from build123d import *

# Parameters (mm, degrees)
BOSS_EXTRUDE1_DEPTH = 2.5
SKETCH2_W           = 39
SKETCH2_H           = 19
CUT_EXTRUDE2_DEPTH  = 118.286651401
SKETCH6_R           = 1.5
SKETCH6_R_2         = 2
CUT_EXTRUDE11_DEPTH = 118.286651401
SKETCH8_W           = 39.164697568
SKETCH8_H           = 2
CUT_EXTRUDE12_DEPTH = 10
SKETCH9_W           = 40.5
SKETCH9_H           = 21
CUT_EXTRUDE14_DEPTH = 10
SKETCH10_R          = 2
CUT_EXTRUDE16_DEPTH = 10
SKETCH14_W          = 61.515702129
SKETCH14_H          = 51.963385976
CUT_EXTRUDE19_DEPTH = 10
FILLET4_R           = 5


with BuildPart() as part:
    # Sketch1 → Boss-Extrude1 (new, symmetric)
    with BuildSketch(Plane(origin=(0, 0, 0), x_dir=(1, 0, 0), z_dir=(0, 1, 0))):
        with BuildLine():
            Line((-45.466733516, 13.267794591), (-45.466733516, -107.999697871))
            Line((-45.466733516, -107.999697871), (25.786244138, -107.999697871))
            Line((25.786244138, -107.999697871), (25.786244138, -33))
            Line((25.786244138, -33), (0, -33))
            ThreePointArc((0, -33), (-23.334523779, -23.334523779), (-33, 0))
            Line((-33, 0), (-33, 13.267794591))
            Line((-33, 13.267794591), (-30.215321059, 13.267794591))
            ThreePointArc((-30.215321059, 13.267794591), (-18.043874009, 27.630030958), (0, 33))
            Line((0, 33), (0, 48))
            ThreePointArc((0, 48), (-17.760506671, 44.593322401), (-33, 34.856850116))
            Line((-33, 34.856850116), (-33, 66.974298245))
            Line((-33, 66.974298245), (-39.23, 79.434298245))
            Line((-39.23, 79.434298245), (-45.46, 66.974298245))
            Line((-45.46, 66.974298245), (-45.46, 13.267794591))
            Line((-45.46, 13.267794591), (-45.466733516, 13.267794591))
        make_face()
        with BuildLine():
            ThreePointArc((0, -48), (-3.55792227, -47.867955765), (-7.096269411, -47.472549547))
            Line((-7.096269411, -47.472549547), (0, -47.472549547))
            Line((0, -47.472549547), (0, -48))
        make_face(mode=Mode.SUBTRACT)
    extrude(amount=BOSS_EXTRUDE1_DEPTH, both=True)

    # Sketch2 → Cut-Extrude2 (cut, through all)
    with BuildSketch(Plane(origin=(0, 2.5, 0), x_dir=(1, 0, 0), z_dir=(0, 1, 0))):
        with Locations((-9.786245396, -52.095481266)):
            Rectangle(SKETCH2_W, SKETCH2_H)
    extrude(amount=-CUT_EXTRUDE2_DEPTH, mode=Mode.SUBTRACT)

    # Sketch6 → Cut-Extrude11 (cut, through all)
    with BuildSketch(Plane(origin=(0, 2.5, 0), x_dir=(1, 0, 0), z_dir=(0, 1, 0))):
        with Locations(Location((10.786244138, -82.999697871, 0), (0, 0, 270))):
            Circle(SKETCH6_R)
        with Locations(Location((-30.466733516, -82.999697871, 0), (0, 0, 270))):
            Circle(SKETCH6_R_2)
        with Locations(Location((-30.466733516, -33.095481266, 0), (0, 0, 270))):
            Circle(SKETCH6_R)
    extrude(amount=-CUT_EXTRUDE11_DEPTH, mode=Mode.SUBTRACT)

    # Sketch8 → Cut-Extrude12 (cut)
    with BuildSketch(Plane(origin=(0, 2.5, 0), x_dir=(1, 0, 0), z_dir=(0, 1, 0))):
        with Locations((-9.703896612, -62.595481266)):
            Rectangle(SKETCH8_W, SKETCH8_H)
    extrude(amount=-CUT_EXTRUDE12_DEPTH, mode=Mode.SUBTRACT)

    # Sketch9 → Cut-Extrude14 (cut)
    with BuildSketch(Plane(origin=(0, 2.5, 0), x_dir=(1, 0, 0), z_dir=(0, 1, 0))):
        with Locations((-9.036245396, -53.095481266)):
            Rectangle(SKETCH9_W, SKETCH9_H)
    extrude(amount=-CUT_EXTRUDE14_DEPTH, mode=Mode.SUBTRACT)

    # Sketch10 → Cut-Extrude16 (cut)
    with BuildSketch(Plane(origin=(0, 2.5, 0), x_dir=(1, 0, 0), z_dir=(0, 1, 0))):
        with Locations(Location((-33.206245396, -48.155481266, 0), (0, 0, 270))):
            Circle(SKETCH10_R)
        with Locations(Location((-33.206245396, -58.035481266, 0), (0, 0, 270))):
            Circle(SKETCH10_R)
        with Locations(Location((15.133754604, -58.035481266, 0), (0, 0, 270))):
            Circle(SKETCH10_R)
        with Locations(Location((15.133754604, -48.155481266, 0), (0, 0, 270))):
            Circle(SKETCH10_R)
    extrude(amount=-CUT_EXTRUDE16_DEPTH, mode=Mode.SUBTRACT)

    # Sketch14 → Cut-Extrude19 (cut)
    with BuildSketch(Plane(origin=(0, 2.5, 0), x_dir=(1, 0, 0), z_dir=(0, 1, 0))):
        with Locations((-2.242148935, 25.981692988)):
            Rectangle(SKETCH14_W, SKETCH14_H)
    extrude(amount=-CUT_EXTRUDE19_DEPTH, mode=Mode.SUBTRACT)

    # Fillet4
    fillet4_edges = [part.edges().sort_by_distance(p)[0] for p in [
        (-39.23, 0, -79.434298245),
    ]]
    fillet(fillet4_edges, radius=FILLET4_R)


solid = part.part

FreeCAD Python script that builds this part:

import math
import FreeCAD as App
import Part
import Sketcher

V = App.Vector
Q = App.Units.Quantity


def edges_at(feature, points):
    """Names of the edges that pass closest to the given points."""
    edges = feature.Shape.Edges
    near = lambda p: min(range(len(edges)), key=lambda i: edges[i].distToShape(Part.Vertex(*p))[0])
    return sorted({f"Edge{near(p) + 1}" for p in points})


def add_polygon(sketch, points):
    """Adds a closed chain of lines whose ends are joined by coincident constraints."""
    first, n = sketch.GeometryCount, len(points)
    for a, b in zip(points, points[1:] + points[:1]):
        sketch.addGeometry(Part.LineSegment(App.Vector(*a, 0), App.Vector(*b, 0)), False)
    for i in range(n):
        sketch.addConstraint(Sketcher.Constraint("Coincident", first + i, 2, first + (i + 1) % n, 1))

doc = App.newDocument("Part")
body = doc.addObject("PartDesign::Body", "Body")

sketch1 = body.newObject("Sketcher::SketchObject", "Sketch")
sketch1.AttachmentSupport = (doc.getObject("XZ_Plane"), [""])
sketch1.MapMode = "FlatFace"
sketch1.addGeometry(Part.LineSegment(V(-45.467, -13.268, 0), V(-45.467, 108, 0)), False)
sketch1.addGeometry(Part.LineSegment(V(-45.467, 108, 0), V(25.786, 108, 0)), False)
sketch1.addGeometry(Part.LineSegment(V(25.786, 108, 0), V(25.786, 33, 0)), False)
sketch1.addGeometry(Part.LineSegment(V(25.786, 33, 0), V(0, 33, 0)), False)
sketch1.addGeometry(Part.ArcOfCircle(Part.Circle(V(0, 0, 0), V(0, 0, 1), 33), math.radians(90), math.radians(180)), False)
sketch1.addGeometry(Part.LineSegment(V(-33, 0, 0), V(-33, -13.268, 0)), False)
sketch1.addGeometry(Part.LineSegment(V(-33, -13.268, 0), V(-30.215, -13.268, 0)), False)
sketch1.addGeometry(Part.ArcOfCircle(Part.Circle(V(0, 0, 0), V(0, 0, 1), 33), math.radians(-156), math.radians(-90)), False)
sketch1.addGeometry(Part.LineSegment(V(0, -33, 0), V(0, -48, 0)), False)
sketch1.addGeometry(Part.ArcOfCircle(Part.Circle(V(0, 0, 0), V(0, 0, 1), 48), math.radians(-133), math.radians(-90)), False)
sketch1.addGeometry(Part.LineSegment(V(-33, -34.857, 0), V(-33, -66.974, 0)), False)
sketch1.addGeometry(Part.LineSegment(V(-33, -66.974, 0), V(-39.23, -79.434, 0)), False)
sketch1.addGeometry(Part.LineSegment(V(-39.23, -79.434, 0), V(-45.46, -66.974, 0)), False)
sketch1.addGeometry(Part.LineSegment(V(-45.46, -66.974, 0), V(-45.46, -13.268, 0)), False)
sketch1.addGeometry(Part.LineSegment(V(-45.46, -13.268, 0), V(-45.467, -13.268, 0)), False)
sketch1.addGeometry(Part.LineSegment(V(0, 47.473, 0), V(0, 48, 0)), False)
sketch1.addGeometry(Part.ArcOfCircle(Part.Circle(V(0, 0, 0), V(0, 0, 1), 48), math.radians(90), math.radians(98.5)), False)
sketch1.addGeometry(Part.LineSegment(V(-7.096, 47.473, 0), V(0, 47.473, 0)), False)
sketch1.addConstraint(Sketcher.Constraint("Coincident", 0, 2, 1, 1))
sketch1.addConstraint(Sketcher.Constraint("Coincident", 1, 2, 2, 1))
sketch1.addConstraint(Sketcher.Constraint("Coincident", 2, 2, 3, 1))
sketch1.addConstraint(Sketcher.Constraint("Tangent", 3, 2, 4, 1))
sketch1.addConstraint(Sketcher.Constraint("Tangent", 4, 2, 5, 1))
sketch1.addConstraint(Sketcher.Constraint("Coincident", 5, 2, 6, 1))
sketch1.addConstraint(Sketcher.Constraint("Coincident", 6, 2, 7, 1))
sketch1.addConstraint(Sketcher.Constraint("Coincident", 7, 2, 8, 1))
sketch1.addConstraint(Sketcher.Constraint("Coincident", 8, 2, 9, 2))
sketch1.addConstraint(Sketcher.Constraint("Coincident", 9, 1, 10, 1))
sketch1.addConstraint(Sketcher.Constraint("Coincident", 10, 2, 11, 1))
sketch1.addConstraint(Sketcher.Constraint("Coincident", 11, 2, 12, 1))
sketch1.addConstraint(Sketcher.Constraint("Coincident", 12, 2, 13, 1))
sketch1.addConstraint(Sketcher.Constraint("Coincident", 13, 2, 14, 1))
sketch1.addConstraint(Sketcher.Constraint("Coincident", 14, 2, 0, 1))
sketch1.addConstraint(Sketcher.Constraint("Coincident", 15, 2, 16, 1))
sketch1.addConstraint(Sketcher.Constraint("Coincident", 16, 2, 17, 1))
sketch1.addConstraint(Sketcher.Constraint("Coincident", 17, 2, 15, 1))
sketch1.addConstraint(Sketcher.Constraint("Vertical", 0))
sketch1.addConstraint(Sketcher.Constraint("Horizontal", 1))
sketch1.addConstraint(Sketcher.Constraint("Vertical", 2))
sketch1.addConstraint(Sketcher.Constraint("Horizontal", 3))
sketch1.addConstraint(Sketcher.Constraint("Vertical", 5))
sketch1.addConstraint(Sketcher.Constraint("Horizontal", 6))
sketch1.addConstraint(Sketcher.Constraint("Vertical", 8))
sketch1.addConstraint(Sketcher.Constraint("Vertical", 10))
sketch1.addConstraint(Sketcher.Constraint("Vertical", 13))
sketch1.addConstraint(Sketcher.Constraint("Horizontal", 14))
sketch1.addConstraint(Sketcher.Constraint("Vertical", 15))
sketch1.addConstraint(Sketcher.Constraint("Horizontal", 17))
sketch1.addConstraint(Sketcher.Constraint("Coincident", 4, 3, -1, 1))
sketch1.addConstraint(Sketcher.Constraint("Coincident", 7, 3, -1, 1))
sketch1.addConstraint(Sketcher.Constraint("Coincident", 9, 3, -1, 1))
sketch1.addConstraint(Sketcher.Constraint("Coincident", 16, 3, -1, 1))
sketch1.addConstraint(Sketcher.Constraint("Equal", 4, 7))
sketch1.addConstraint(Sketcher.Constraint("Equal", 9, 16))
sketch1.addConstraint(Sketcher.Constraint("PointOnObject", 7, 2, -2))
sketch1.addConstraint(Sketcher.Constraint("PointOnObject", 15, 2, -2))
sketch1.addConstraint(Sketcher.Constraint("Horizontal", 10, 2, 12, 2))
sketch1.addConstraint(Sketcher.Constraint("Horizontal", 6, 2, 13, 2))
sketch1.addConstraint(Sketcher.Constraint("Vertical", 5, 2, 9, 1))
sketch1.addConstraint(Sketcher.Constraint("Equal", 11, 12))
sketch1.addConstraint(Sketcher.Constraint("Radius", 4, Q("33 mm")))
sketch1.addConstraint(Sketcher.Constraint("Radius", 9, Q("48 mm")))
sketch1.addConstraint(Sketcher.Constraint("DistanceX", 11, 2, -1, 1, Q("39.23 mm")))
sketch1.addConstraint(Sketcher.Constraint("DistanceY", 11, 2, 10, 2, Q("12.46 mm")))
sketch1.addConstraint(Sketcher.Constraint("DistanceX", 6, 1, 6, 2, Q("2.784679 mm")))
sketch1.addConstraint(Sketcher.Constraint("DistanceX", 17, 1, 17, 2, Q("7.096269 mm")))
sketch1.addConstraint(Sketcher.Constraint("DistanceY", 10, 2, 10, 1, Q("32.117448 mm")))
sketch1.addConstraint(Sketcher.Constraint("DistanceX", 1, 1, 1, 2, Q("71.252978 mm")))
sketch1.addConstraint(Sketcher.Constraint("DistanceX", 3, 2, 3, 1, Q("25.786244 mm")))
sketch1.addConstraint(Sketcher.Constraint("DistanceY", 0, 1, 0, 2, Q("121.267492 mm")))
pad1 = body.newObject("PartDesign::Pad", "Pad")
pad1.Profile = sketch1
pad1.Length = 5
pad1.Midplane = True

sketch2 = body.newObject("Sketcher::SketchObject", "Sketch001")
sketch2.AttachmentSupport = (doc.getObject("XZ_Plane"), [""])
sketch2.MapMode = "FlatFace"
sketch2.AttachmentOffset = App.Placement(V(0, 0, -2.5), App.Rotation())
add_polygon(sketch2, [(-29, 43), (-29, 62), (10, 62), (10, 43)])
sketch2.addConstraint(Sketcher.Constraint("Vertical", 0))
sketch2.addConstraint(Sketcher.Constraint("Horizontal", 1))
sketch2.addConstraint(Sketcher.Constraint("Vertical", 2))
sketch2.addConstraint(Sketcher.Constraint("Horizontal", 3))
sketch2.addConstraint(Sketcher.Constraint("DistanceX", 1, 1, 1, 2, Q("39 mm")))
sketch2.addConstraint(Sketcher.Constraint("DistanceY", 0, 1, 0, 2, Q("19 mm")))
sketch2.addConstraint(Sketcher.Constraint("DistanceY", -1, 1, 0, 2, Q("61.595481 mm")))
sketch2.addConstraint(Sketcher.Constraint("DistanceX", 0, 2, -1, 1, Q("29.286245 mm")))
pocket1 = body.newObject("PartDesign::Pocket", "Pocket")
pocket1.Profile = sketch2
pocket1.Type = "ThroughAll"
pocket1.Reversed = True

sketch3 = body.newObject("Sketcher::SketchObject", "Sketch002")
sketch3.AttachmentSupport = (doc.getObject("XZ_Plane"), [""])
sketch3.MapMode = "FlatFace"
sketch3.AttachmentOffset = App.Placement(V(0, 0, -2.5), App.Rotation())
sketch3.addGeometry(Part.Circle(V(10.8, 83, 0), V(0, 0, 1), 1.5), False)
sketch3.addGeometry(Part.Circle(V(-30.5, 83, 0), V(0, 0, 1), 2), False)
sketch3.addGeometry(Part.Circle(V(-30.5, 33.1, 0), V(0, 0, 1), 1.5), False)
sketch3.addConstraint(Sketcher.Constraint("Equal", 0, 2))
sketch3.addConstraint(Sketcher.Constraint("Horizontal", 0, 3, 1, 3))
sketch3.addConstraint(Sketcher.Constraint("Vertical", 1, 3, 2, 3))
sketch3.addConstraint(Sketcher.Constraint("Diameter", 0, Q("3 mm")))
sketch3.addConstraint(Sketcher.Constraint("Diameter", 1, Q("4 mm")))
sketch3.addConstraint(Sketcher.Constraint("DistanceY", -1, 1, 2, 3, Q("33.095481 mm")))
sketch3.addConstraint(Sketcher.Constraint("DistanceX", -1, 1, 0, 3, Q("10.786244 mm")))
sketch3.addConstraint(Sketcher.Constraint("DistanceY", -1, 1, 0, 3, Q("82.999698 mm")))
sketch3.addConstraint(Sketcher.Constraint("DistanceX", 1, 3, -1, 1, Q("30.466734 mm")))
pocket2 = body.newObject("PartDesign::Pocket", "Pocket001")
pocket2.Profile = sketch3
pocket2.Type = "ThroughAll"
pocket2.Reversed = True

sketch4 = body.newObject("Sketcher::SketchObject", "Sketch003")
sketch4.AttachmentSupport = (doc.getObject("XZ_Plane"), [""])
sketch4.MapMode = "FlatFace"
sketch4.AttachmentOffset = App.Placement(V(0, 0, -2.5), App.Rotation())
add_polygon(sketch4, [(-29.3, 61.6), (-29.3, 63.6), (9.9, 63.6), (9.9, 61.6)])
sketch4.addConstraint(Sketcher.Constraint("Vertical", 0))
sketch4.addConstraint(Sketcher.Constraint("Horizontal", 1))
sketch4.addConstraint(Sketcher.Constraint("Vertical", 2))
sketch4.addConstraint(Sketcher.Constraint("Horizontal", 3))
sketch4.addConstraint(Sketcher.Constraint("DistanceY", 0, 1, 0, 2, Q("2 mm")))
sketch4.addConstraint(Sketcher.Constraint("DistanceX", 1, 1, 1, 2, Q("39.164698 mm")))
sketch4.addConstraint(Sketcher.Constraint("DistanceY", -1, 1, 0, 2, Q("63.595481 mm")))
sketch4.addConstraint(Sketcher.Constraint("DistanceX", 0, 2, -1, 1, Q("29.286245 mm")))
pocket3 = body.newObject("PartDesign::Pocket", "Pocket002")
pocket3.Profile = sketch4
pocket3.Length = 10
pocket3.Reversed = True

sketch5 = body.newObject("Sketcher::SketchObject", "Sketch004")
sketch5.AttachmentSupport = (doc.getObject("XZ_Plane"), [""])
sketch5.MapMode = "FlatFace"
sketch5.AttachmentOffset = App.Placement(V(0, 0, -2.5), App.Rotation())
add_polygon(sketch5, [(-29, 43), (-29, 64), (11, 64), (11, 43)])
sketch5.addConstraint(Sketcher.Constraint("Vertical", 0))
sketch5.addConstraint(Sketcher.Constraint("Horizontal", 1))
sketch5.addConstraint(Sketcher.Constraint("Vertical", 2))
sketch5.addConstraint(Sketcher.Constraint("Horizontal", 3))
sketch5.addConstraint(Sketcher.Constraint("DistanceY", 0, 1, 0, 2, Q("21 mm")))
sketch5.addConstraint(Sketcher.Constraint("DistanceX", 1, 1, 1, 2, Q("40.5 mm")))
sketch5.addConstraint(Sketcher.Constraint("DistanceY", -1, 1, 0, 2, Q("63.595481 mm")))
sketch5.addConstraint(Sketcher.Constraint("DistanceX", 0, 2, -1, 1, Q("29.286245 mm")))
pocket4 = body.newObject("PartDesign::Pocket", "Pocket003")
pocket4.Profile = sketch5
pocket4.Length = 10
pocket4.Reversed = True

sketch6 = body.newObject("Sketcher::SketchObject", "Sketch005")
sketch6.AttachmentSupport = (doc.getObject("XZ_Plane"), [""])
sketch6.MapMode = "FlatFace"
sketch6.AttachmentOffset = App.Placement(V(0, 0, -2.5), App.Rotation())
sketch6.addGeometry(Part.Circle(V(-33.2, 48.2, 0), V(0, 0, 1), 2), False)
sketch6.addGeometry(Part.Circle(V(-33.2, 58, 0), V(0, 0, 1), 2), False)
sketch6.addGeometry(Part.Circle(V(15.1, 58, 0), V(0, 0, 1), 2), False)
sketch6.addGeometry(Part.Circle(V(15.1, 48.2, 0), V(0, 0, 1), 2), False)
sketch6.addConstraint(Sketcher.Constraint("Equal", 0, 1))
sketch6.addConstraint(Sketcher.Constraint("Equal", 1, 2))
sketch6.addConstraint(Sketcher.Constraint("Equal", 2, 3))
sketch6.addConstraint(Sketcher.Constraint("Horizontal", 1, 3, 2, 3))
sketch6.addConstraint(Sketcher.Constraint("Horizontal", 0, 3, 3, 3))
sketch6.addConstraint(Sketcher.Constraint("Vertical", 0, 3, 1, 3))
sketch6.addConstraint(Sketcher.Constraint("Vertical", 2, 3, 3, 3))
sketch6.addConstraint(Sketcher.Constraint("Diameter", 0, Q("4 mm")))
sketch6.addConstraint(Sketcher.Constraint("DistanceY", 0, 3, 1, 3, Q("9.88 mm")))
sketch6.addConstraint(Sketcher.Constraint("DistanceX", 1, 3, 2, 3, Q("48.34 mm")))
sketch6.addConstraint(Sketcher.Constraint("DistanceY", -1, 1, 0, 3, Q("48.155481 mm")))
sketch6.addConstraint(Sketcher.Constraint("DistanceX", 0, 3, -1, 1, Q("33.206245 mm")))
pocket5 = body.newObject("PartDesign::Pocket", "Pocket004")
pocket5.Profile = sketch6
pocket5.Length = 10
pocket5.Reversed = True

sketch7 = body.newObject("Sketcher::SketchObject", "Sketch006")
sketch7.AttachmentSupport = (doc.getObject("XZ_Plane"), [""])
sketch7.MapMode = "FlatFace"
sketch7.AttachmentOffset = App.Placement(V(0, 0, -2.5), App.Rotation())
add_polygon(sketch7, [(-33, -52), (-33, 0), (29, 0), (29, -52)])
sketch7.addConstraint(Sketcher.Constraint("Vertical", 0))
sketch7.addConstraint(Sketcher.Constraint("Horizontal", 1))
sketch7.addConstraint(Sketcher.Constraint("Vertical", 2))
sketch7.addConstraint(Sketcher.Constraint("Horizontal", 3))
sketch7.addConstraint(Sketcher.Constraint("PointOnObject", 0, 2, -1))
sketch7.addConstraint(Sketcher.Constraint("DistanceX", 0, 2, -1, 1, Q("33 mm")))
sketch7.addConstraint(Sketcher.Constraint("DistanceX", 1, 1, 1, 2, Q("61.515702 mm")))
sketch7.addConstraint(Sketcher.Constraint("DistanceY", 0, 1, 0, 2, Q("51.963386 mm")))
pocket6 = body.newObject("PartDesign::Pocket", "Pocket005")
pocket6.Profile = sketch7
pocket6.Length = 10
pocket6.Reversed = True
doc.recompute()

fillet = body.newObject("PartDesign::Fillet", "Fillet")
fillet.Base = (pocket6, edges_at(pocket6, [(-39.23, 0, -79.434)]))
fillet.Radius = 5

doc.recompute()
